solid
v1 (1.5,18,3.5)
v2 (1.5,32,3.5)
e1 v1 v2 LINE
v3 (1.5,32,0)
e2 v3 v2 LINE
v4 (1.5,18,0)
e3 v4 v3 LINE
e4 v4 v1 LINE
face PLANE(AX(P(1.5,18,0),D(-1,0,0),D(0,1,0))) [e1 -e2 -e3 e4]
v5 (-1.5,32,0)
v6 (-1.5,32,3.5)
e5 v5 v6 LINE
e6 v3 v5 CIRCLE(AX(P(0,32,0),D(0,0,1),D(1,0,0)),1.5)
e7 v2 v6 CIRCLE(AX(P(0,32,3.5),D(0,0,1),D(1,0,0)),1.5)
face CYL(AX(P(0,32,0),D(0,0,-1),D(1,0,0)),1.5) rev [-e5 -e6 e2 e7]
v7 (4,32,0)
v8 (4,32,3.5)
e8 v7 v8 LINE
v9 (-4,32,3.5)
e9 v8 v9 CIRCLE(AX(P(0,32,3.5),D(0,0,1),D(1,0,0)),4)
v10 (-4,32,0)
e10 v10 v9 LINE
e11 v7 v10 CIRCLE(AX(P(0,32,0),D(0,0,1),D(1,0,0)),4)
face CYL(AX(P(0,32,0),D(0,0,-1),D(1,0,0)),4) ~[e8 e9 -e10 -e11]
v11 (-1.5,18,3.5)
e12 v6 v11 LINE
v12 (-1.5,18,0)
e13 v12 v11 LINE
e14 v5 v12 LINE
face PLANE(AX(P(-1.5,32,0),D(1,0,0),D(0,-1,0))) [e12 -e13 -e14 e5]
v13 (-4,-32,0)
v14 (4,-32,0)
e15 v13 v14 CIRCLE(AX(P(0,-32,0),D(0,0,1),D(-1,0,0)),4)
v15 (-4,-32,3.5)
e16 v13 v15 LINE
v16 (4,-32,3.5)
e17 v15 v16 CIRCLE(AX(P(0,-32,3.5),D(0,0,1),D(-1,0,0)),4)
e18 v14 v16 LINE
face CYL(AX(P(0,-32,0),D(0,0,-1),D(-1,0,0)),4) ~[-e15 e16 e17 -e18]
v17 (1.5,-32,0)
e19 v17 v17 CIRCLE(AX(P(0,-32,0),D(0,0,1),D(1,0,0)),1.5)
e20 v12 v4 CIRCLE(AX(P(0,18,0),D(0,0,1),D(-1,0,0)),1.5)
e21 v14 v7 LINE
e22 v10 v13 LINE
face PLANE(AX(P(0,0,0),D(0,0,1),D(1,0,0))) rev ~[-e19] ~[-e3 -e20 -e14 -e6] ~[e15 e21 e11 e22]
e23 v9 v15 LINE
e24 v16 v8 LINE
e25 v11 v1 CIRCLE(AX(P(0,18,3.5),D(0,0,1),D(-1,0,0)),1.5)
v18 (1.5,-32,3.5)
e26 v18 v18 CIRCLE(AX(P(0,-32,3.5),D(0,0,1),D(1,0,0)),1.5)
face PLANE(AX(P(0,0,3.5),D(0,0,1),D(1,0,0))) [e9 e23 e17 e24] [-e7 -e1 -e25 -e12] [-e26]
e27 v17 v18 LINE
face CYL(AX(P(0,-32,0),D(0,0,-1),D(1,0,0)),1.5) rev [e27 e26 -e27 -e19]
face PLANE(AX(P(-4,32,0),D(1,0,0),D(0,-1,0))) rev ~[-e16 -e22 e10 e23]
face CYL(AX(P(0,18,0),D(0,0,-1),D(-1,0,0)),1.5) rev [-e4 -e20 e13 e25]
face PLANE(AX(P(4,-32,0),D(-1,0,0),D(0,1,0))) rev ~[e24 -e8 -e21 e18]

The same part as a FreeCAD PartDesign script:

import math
import FreeCAD as App
import Part
import Sketcher
from FreeCAD import Vector
Q = App.Units.Quantity

doc = App.newDocument("Part")
body = doc.addObject("PartDesign::Body", "Body")

sketch1 = body.newObject("Sketcher::SketchObject", "Sketch")
sketch1.AttachmentSupport = (doc.getObject("XY_Plane"), [""])
sketch1.MapMode = "FlatFace"
sketch1.addGeometry(Part.ArcOfCircle(Part.Circle(Vector(0, 32, 0), Vector(0, 0, 1), 4), math.radians(0), math.radians(180)), False)
sketch1.addGeometry(Part.LineSegment(Vector(-4, 32, 0), Vector(-4, -32, 0)), False)
sketch1.addGeometry(Part.ArcOfCircle(Part.Circle(Vector(0, -32, 0), Vector(0, 0, 1), 4), math.radians(180), math.radians(360)), False)
sketch1.addGeometry(Part.LineSegment(Vector(4, -32, 0), Vector(4, 32, 0)), False)
sketch1.addGeometry(Part.Circle(Vector(0, -32, 0), Vector(0, 0, 1), 1.5), False)
sketch1.addGeometry(Part.LineSegment(Vector(1.5, 32, 0), Vector(1.5, 18, 0)), False)
sketch1.addGeometry(Part.ArcOfCircle(Part.Circle(Vector(0, 18, 0), Vector(0, 0, 1), 1.5), math.radians(180), math.radians(360)), False)
sketch1.addGeometry(Part.LineSegment(Vector(-1.5, 18, 0), Vector(-1.5, 32, 0)), False)
sketch1.addGeometry(Part.ArcOfCircle(Part.Circle(Vector(0, 32, 0), Vector(0, 0, 1), 1.5), math.radians(0), math.radians(180)), False)
sketch1.addConstraint(Sketcher.Constraint("Tangent", 0, 2, 1, 1))
sketch1.addConstraint(Sketcher.Constraint("Tangent", 1, 2, 2, 1))
sketch1.addConstraint(Sketcher.Constraint("Tangent", 2, 2, 3, 1))
sketch1.addConstraint(Sketcher.Constraint("Tangent", 3, 2, 0, 1))
sketch1.addConstraint(Sketcher.Constraint("Tangent", 5, 2, 6, 2))
sketch1.addConstraint(Sketcher.Constraint("Tangent", 6, 1, 7, 1))
sketch1.addConstraint(Sketcher.Constraint("Tangent", 7, 2, 8, 2))
sketch1.addConstraint(Sketcher.Constraint("Tangent", 8, 1, 5, 1))
sketch1.addConstraint(Sketcher.Constraint("Vertical", 1))
sketch1.addConstraint(Sketcher.Constraint("Vertical", 3))
sketch1.addConstraint(Sketcher.Constraint("Vertical", 5))
sketch1.addConstraint(Sketcher.Constraint("Vertical", 7))
sketch1.addConstraint(Sketcher.Constraint("Coincident", 4, 3, 2, 3))
sketch1.addConstraint(Sketcher.Constraint("Coincident", 8, 3, 0, 3))
sketch1.addConstraint(Sketcher.Constraint("Equal", 4, 6))
sketch1.addConstraint(Sketcher.Constraint("Symmetric", 0, 3, 2, 3, -1, 1))
sketch1.addConstraint(Sketcher.Constraint("Diameter", 4, Q("3 mm")))
sketch1.addConstraint(Sketcher.Constraint("Radius", 0, Q("4 mm")))
sketch1.addConstraint(Sketcher.Constraint("DistanceY", -1, 1, 0, 3, Q("32 mm")))
sketch1.addConstraint(Sketcher.Constraint("DistanceY", 5, 2, 5, 1, Q("14 mm")))
pad1 = body.newObject("PartDesign::Pad", "Pad")
pad1.Profile = sketch1
pad1.Length = 3.5

doc.recompute()
